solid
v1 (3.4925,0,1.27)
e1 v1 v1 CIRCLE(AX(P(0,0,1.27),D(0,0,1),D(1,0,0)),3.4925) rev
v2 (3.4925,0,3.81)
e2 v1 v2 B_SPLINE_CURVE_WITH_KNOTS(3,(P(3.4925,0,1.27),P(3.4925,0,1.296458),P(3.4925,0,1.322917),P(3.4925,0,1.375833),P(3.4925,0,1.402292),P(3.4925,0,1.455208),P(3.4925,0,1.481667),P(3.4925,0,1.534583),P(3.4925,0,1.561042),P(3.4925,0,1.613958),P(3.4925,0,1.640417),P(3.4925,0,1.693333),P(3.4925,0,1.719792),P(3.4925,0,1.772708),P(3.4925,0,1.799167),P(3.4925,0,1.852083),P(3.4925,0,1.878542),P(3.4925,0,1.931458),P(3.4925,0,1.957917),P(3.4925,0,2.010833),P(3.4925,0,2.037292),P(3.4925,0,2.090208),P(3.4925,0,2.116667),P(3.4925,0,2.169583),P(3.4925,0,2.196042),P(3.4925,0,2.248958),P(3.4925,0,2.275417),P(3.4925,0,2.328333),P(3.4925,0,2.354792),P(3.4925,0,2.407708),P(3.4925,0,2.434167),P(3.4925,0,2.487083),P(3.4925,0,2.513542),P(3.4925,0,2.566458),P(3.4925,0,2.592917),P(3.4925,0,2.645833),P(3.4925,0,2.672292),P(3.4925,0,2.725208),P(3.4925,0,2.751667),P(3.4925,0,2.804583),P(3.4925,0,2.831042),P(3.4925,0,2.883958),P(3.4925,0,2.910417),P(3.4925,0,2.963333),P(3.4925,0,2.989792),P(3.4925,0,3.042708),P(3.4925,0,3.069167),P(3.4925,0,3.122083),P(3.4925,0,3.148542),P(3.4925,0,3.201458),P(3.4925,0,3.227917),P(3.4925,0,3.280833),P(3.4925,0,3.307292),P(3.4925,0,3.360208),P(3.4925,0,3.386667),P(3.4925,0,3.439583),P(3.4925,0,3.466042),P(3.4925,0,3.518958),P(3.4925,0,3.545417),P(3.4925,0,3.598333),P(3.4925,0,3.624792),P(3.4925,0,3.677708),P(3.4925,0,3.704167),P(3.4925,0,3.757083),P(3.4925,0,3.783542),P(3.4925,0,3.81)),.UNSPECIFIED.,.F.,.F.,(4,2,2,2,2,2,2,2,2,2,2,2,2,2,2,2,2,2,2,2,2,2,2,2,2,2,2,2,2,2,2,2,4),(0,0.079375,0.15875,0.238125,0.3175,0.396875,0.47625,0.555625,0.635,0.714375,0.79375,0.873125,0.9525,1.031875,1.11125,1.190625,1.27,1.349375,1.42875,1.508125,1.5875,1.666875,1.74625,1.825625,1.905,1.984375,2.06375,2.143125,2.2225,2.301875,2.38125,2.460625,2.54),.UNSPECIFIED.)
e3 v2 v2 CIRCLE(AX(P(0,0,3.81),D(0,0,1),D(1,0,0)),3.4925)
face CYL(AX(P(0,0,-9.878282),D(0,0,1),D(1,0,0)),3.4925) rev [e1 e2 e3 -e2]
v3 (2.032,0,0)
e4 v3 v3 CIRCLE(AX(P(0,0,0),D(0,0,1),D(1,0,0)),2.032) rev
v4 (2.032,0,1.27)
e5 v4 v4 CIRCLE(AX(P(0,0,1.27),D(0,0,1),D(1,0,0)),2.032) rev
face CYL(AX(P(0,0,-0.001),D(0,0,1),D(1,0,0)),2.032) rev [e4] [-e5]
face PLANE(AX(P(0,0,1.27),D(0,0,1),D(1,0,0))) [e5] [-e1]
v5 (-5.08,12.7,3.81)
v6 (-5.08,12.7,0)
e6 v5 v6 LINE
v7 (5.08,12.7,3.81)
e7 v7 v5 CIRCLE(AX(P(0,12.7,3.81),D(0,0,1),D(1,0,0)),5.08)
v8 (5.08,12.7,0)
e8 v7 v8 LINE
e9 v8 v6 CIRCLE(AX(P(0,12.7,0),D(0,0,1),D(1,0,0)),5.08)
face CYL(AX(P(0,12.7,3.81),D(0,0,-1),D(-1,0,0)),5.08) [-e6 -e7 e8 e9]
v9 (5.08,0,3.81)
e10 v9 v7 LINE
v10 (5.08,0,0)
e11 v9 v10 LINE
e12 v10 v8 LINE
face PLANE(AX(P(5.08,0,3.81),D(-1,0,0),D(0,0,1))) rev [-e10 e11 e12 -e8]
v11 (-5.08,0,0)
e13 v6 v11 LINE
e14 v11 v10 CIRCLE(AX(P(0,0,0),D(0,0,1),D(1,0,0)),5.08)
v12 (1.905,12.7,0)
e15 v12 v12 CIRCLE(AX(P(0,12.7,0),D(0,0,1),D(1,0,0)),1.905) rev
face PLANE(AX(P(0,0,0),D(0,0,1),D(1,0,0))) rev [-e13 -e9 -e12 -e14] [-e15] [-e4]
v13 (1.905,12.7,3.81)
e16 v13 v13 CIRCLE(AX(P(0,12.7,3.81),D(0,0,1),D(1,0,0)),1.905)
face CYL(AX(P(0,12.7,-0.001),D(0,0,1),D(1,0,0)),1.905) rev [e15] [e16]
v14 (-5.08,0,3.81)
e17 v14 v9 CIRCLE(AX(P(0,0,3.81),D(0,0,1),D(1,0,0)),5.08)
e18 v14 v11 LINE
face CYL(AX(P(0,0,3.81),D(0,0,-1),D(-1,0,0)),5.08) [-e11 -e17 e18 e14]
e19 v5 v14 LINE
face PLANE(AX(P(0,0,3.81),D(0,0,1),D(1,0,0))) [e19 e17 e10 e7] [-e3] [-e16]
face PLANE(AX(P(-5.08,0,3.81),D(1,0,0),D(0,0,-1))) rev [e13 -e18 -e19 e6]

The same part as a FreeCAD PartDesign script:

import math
import FreeCAD as App
import Part
import Sketcher
from FreeCAD import Vector
Q = App.Units.Quantity

doc = App.newDocument("Part")
body = doc.addObject("PartDesign::Body", "Body")

sketch1 = body.newObject("Sketcher::SketchObject", "Sketch")
sketch1.AttachmentSupport = (doc.getObject("XY_Plane"), [""])
sketch1.MapMode = "FlatFace"
sketch1.addGeometry([
    Part.LineSegment(Vector(-5, 13, 0), Vector(-5, 0, 0)),
    Part.ArcOfCircle(Part.Circle(Vector(0, 0, 0), Vector(0, 0, 1), 5), math.radians(180), math.radians(360)),
    Part.LineSegment(Vector(5, 0, 0), Vector(5, 13, 0)),
    Part.ArcOfCircle(Part.Circle(Vector(0, 13, 0), Vector(0, 0, 1), 5), math.radians(0), math.radians(180)),
], False)
sketch1.addConstraint([
    Sketcher.Constraint("Tangent", 0, 2, 1, 1),
    Sketcher.Constraint("Tangent", 1, 2, 2, 1),
    Sketcher.Constraint("Tangent", 2, 2, 3, 1),
    Sketcher.Constraint("Tangent", 3, 2, 0, 1),
    Sketcher.Constraint("Vertical", 0),
    Sketcher.Constraint("Vertical", 2),
    Sketcher.Constraint("Coincident", 1, 3, -1, 1),
    Sketcher.Constraint("Radius", 1, Q("0.2 in")),
    Sketcher.Constraint("DistanceY", 0, 2, 0, 1, Q("0.5 in")),
])
pad1 = body.newObject("PartDesign::Pad", "Pad")
pad1.Profile = sketch1
pad1.Length = Q("0.15 in")

sketch2 = body.newObject("Sketcher::SketchObject", "Sketch001")
sketch2.AttachmentSupport = (doc.getObject("XY_Plane"), [""])
sketch2.MapMode = "FlatFace"
sketch2.AttachmentOffset = App.Placement(Vector(0, 0, 0.15 * 25.4), App.Rotation())
sketch2.addGeometry(Part.Circle(Vector(0, 0, 0), Vector(0, 0, 1), 2), False)
sketch2.addConstraint([
    Sketcher.Constraint("Coincident", 0, 3, -1, 1),
    Sketcher.Constraint("Diameter", 0, Q("0.16 in")),
])
pocket1 = body.newObject("PartDesign::Pocket", "Pocket")
pocket1.Profile = sketch2
pocket1.Type = "UpToFirst"

sketch3 = body.newObject("Sketcher::SketchObject", "Sketch002")
sketch3.AttachmentSupport = (doc.getObject("XY_Plane"), [""])
sketch3.MapMode = "FlatFace"
sketch3.AttachmentOffset = App.Placement(Vector(0, 0, 0.15 * 25.4), App.Rotation())
sketch3.addGeometry(Part.Circle(Vector(0, 12.7, 0), Vector(0, 0, 1), 1.9), False)
sketch3.addConstraint([
    Sketcher.Constraint("PointOnObject", 0, 3, -2),
    Sketcher.Constraint("Diameter", 0, Q("0.15 in")),
    Sketcher.Constraint("DistanceY", -1, 1, 0, 3, Q("0.5 in")),
])
pocket2 = body.newObject("PartDesign::Pocket", "Pocket001")
pocket2.Profile = sketch3
pocket2.Type = "UpToFirst"

sketch4 = body.newObject("Sketcher::SketchObject", "Sketch003")
sketch4.AttachmentSupport = (doc.getObject("XY_Plane"), [""])
sketch4.MapMode = "FlatFace"
sketch4.AttachmentOffset = App.Placement(Vector(0, 0, 0.15 * 25.4), App.Rotation())
sketch4.addGeometry(Part.Circle(Vector(0, 0, 0), Vector(0, 0, 1), 3.5), False)
sketch4.addConstraint([
    Sketcher.Constraint("Coincident", 0, 3, -1, 1),
    Sketcher.Constraint("Diameter", 0, Q("0.275 in")),
])
pocket3 = body.newObject("PartDesign::Pocket", "Pocket002")
pocket3.Profile = sketch4
pocket3.Length = Q("0.1 in")

doc.recompute()
